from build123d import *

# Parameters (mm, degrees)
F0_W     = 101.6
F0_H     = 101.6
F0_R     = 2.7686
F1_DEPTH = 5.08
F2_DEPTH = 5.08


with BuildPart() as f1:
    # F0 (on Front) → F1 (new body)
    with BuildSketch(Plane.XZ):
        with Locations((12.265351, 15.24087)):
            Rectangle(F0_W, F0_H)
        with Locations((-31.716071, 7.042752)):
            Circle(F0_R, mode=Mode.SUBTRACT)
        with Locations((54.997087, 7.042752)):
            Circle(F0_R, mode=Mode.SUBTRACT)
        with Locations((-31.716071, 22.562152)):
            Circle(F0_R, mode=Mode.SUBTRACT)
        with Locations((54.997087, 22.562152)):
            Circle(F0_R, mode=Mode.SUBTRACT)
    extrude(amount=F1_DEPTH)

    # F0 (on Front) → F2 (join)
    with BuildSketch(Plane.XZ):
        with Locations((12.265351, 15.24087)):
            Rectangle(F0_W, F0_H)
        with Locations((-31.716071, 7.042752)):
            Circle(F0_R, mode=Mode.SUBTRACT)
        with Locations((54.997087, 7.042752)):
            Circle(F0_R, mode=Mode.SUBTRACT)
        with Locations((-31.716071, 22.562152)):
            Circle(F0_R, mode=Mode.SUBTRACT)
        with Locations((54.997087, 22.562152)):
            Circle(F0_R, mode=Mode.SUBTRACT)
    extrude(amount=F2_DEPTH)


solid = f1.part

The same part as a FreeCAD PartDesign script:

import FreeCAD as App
import Part
import Sketcher
Q = App.Units.Quantity


def add_polygon(sketch, points):
    """Adds a closed chain of lines whose ends are joined by coincident constraints."""
    first, n = sketch.GeometryCount, len(points)
    for a, b in zip(points, points[1:] + points[:1]):
        sketch.addGeometry(Part.LineSegment(App.Vector(*a, 0), App.Vector(*b, 0)), False)
    for i in range(n):
        sketch.addConstraint(Sketcher.Constraint("Coincident", first + i, 2, first + (i + 1) % n, 1))

doc = App.newDocument("Part")
body = doc.addObject("PartDesign::Body", "Body")

# Sketch on XZ plane
sketch1 = body.newObject("Sketcher::SketchObject", "Sketch")
sketch1.AttachmentSupport = (doc.getObject("XZ_Plane"), [""])
sketch1.MapMode = "FlatFace"
add_polygon(sketch1, [(-38.5, 66), (-38.5, -35.6), (63.1, -35.6), (63.1, 66)])  # lines 0-3
sketch1.addGeometry(Part.Circle(App.Vector(-31.7, 7, 0), App.Vector(0, 0, 1), 2.8), False)  # 4
sketch1.addGeometry(Part.Circle(App.Vector(55, 7, 0), App.Vector(0, 0, 1), 2.8), False)  # 5
sketch1.addGeometry(Part.Circle(App.Vector(-31.7, 22.6, 0), App.Vector(0, 0, 1), 2.8), False)  # 6
sketch1.addGeometry(Part.Circle(App.Vector(55, 22.6, 0), App.Vector(0, 0, 1), 2.8), False)  # 7
sketch1.addConstraint(Sketcher.Constraint("Vertical", 0))
sketch1.addConstraint(Sketcher.Constraint("Horizontal", 1))
sketch1.addConstraint(Sketcher.Constraint("Vertical", 2))
sketch1.addConstraint(Sketcher.Constraint("Horizontal", 3))
sketch1.addConstraint(Sketcher.Constraint("Equal", 4, 5))
sketch1.addConstraint(Sketcher.Constraint("Equal", 5, 6))
sketch1.addConstraint(Sketcher.Constraint("Equal", 6, 7))
sketch1.addConstraint(Sketcher.Constraint("Horizontal", 4, 3, 5, 3))
sketch1.addConstraint(Sketcher.Constraint("Horizontal", 6, 3, 7, 3))
sketch1.addConstraint(Sketcher.Constraint("Vertical", 4, 3, 6, 3))
sketch1.addConstraint(Sketcher.Constraint("Vertical", 5, 3, 7, 3))
sketch1.addConstraint(Sketcher.Constraint("Equal", 3, 0))
sketch1.addConstraint(Sketcher.Constraint("DistanceX", 1, 1, 1, 2, Q("4 in")))
sketch1.addConstraint(Sketcher.Constraint("Diameter", 4, Q("0.218 in")))
sketch1.addConstraint(Sketcher.Constraint("DistanceY", 4, 3, 6, 3, Q("0.611 in")))
sketch1.addConstraint(Sketcher.Constraint("DistanceX", 4, 3, -1, 1, Q("31.716071 mm")))
sketch1.addConstraint(Sketcher.Constraint("DistanceX", 0, 2, -1, 1, Q("38.534649 mm")))
sketch1.addConstraint(Sketcher.Constraint("DistanceY", 0, 2, -1, 1, Q("35.55913 mm")))
sketch1.addConstraint(Sketcher.Constraint("DistanceY", -1, 1, 4, 3, Q("7.042752 mm")))
sketch1.addConstraint(Sketcher.Constraint("DistanceX", -1, 1, 5, 3, Q("54.997087 mm")))
pad1 = body.newObject("PartDesign::Pad", "Pad")
pad1.Profile = sketch1
pad1.Length = Q("0.2 in")

# Sketch on XZ plane
sketch2 = body.newObject("Sketcher::SketchObject", "Sketch001")
sketch2.AttachmentSupport = (doc.getObject("XZ_Plane"), [""])
sketch2.MapMode = "FlatFace"
add_polygon(sketch2, [(-38.5, 66), (-38.5, -35.6), (63.1, -35.6), (63.1, 66)])  # lines 0-3
sketch2.addGeometry(Part.Circle(App.Vector(-31.7, 7, 0), App.Vector(0, 0, 1), 2.8), False)  # 4
sketch2.addGeometry(Part.Circle(App.Vector(55, 7, 0), App.Vector(0, 0, 1), 2.8), False)  # 5
sketch2.addGeometry(Part.Circle(App.Vector(-31.7, 22.6, 0), App.Vector(0, 0, 1), 2.8), False)  # 6
sketch2.addGeometry(Part.Circle(App.Vector(55, 22.6, 0), App.Vector(0, 0, 1), 2.8), False)  # 7
sketch2.addConstraint(Sketcher.Constraint("Vertical", 0))
sketch2.addConstraint(Sketcher.Constraint("Horizontal", 1))
sketch2.addConstraint(Sketcher.Constraint("Vertical", 2))
sketch2.addConstraint(Sketcher.Constraint("Horizontal", 3))
sketch2.addConstraint(Sketcher.Constraint("Equal", 4, 5))
sketch2.addConstraint(Sketcher.Constraint("Equal", 5, 6))
sketch2.addConstraint(Sketcher.Constraint("Equal", 6, 7))
sketch2.addConstraint(Sketcher.Constraint("Horizontal", 4, 3, 5, 3))
sketch2.addConstraint(Sketcher.Constraint("Horizontal", 6, 3, 7, 3))
sketch2.addConstraint(Sketcher.Constraint("Vertical", 4, 3, 6, 3))
sketch2.addConstraint(Sketcher.Constraint("Vertical", 5, 3, 7, 3))
sketch2.addConstraint(Sketcher.Constraint("Equal", 3, 0))
sketch2.addConstraint(Sketcher.Constraint("DistanceX", 1, 1, 1, 2, Q("4 in")))
sketch2.addConstraint(Sketcher.Constraint("Diameter", 4, Q("0.218 in")))
sketch2.addConstraint(Sketcher.Constraint("DistanceY", 4, 3, 6, 3, Q("0.611 in")))
sketch2.addConstraint(Sketcher.Constraint("DistanceX", 4, 3, -1, 1, Q("31.716071 mm")))
sketch2.addConstraint(Sketcher.Constraint("DistanceX", 0, 2, -1, 1, Q("38.534649 mm")))
sketch2.addConstraint(Sketcher.Constraint("DistanceY", 0, 2, -1, 1, Q("35.55913 mm")))
sketch2.addConstraint(Sketcher.Constraint("DistanceY", -1, 1, 4, 3, Q("7.042752 mm")))
sketch2.addConstraint(Sketcher.Constraint("DistanceX", -1, 1, 5, 3, Q("54.997087 mm")))
pad2 = body.newObject("PartDesign::Pad", "Pad001")
pad2.Profile = sketch2
pad2.Length = Q("0.2 in")

doc.recompute()
